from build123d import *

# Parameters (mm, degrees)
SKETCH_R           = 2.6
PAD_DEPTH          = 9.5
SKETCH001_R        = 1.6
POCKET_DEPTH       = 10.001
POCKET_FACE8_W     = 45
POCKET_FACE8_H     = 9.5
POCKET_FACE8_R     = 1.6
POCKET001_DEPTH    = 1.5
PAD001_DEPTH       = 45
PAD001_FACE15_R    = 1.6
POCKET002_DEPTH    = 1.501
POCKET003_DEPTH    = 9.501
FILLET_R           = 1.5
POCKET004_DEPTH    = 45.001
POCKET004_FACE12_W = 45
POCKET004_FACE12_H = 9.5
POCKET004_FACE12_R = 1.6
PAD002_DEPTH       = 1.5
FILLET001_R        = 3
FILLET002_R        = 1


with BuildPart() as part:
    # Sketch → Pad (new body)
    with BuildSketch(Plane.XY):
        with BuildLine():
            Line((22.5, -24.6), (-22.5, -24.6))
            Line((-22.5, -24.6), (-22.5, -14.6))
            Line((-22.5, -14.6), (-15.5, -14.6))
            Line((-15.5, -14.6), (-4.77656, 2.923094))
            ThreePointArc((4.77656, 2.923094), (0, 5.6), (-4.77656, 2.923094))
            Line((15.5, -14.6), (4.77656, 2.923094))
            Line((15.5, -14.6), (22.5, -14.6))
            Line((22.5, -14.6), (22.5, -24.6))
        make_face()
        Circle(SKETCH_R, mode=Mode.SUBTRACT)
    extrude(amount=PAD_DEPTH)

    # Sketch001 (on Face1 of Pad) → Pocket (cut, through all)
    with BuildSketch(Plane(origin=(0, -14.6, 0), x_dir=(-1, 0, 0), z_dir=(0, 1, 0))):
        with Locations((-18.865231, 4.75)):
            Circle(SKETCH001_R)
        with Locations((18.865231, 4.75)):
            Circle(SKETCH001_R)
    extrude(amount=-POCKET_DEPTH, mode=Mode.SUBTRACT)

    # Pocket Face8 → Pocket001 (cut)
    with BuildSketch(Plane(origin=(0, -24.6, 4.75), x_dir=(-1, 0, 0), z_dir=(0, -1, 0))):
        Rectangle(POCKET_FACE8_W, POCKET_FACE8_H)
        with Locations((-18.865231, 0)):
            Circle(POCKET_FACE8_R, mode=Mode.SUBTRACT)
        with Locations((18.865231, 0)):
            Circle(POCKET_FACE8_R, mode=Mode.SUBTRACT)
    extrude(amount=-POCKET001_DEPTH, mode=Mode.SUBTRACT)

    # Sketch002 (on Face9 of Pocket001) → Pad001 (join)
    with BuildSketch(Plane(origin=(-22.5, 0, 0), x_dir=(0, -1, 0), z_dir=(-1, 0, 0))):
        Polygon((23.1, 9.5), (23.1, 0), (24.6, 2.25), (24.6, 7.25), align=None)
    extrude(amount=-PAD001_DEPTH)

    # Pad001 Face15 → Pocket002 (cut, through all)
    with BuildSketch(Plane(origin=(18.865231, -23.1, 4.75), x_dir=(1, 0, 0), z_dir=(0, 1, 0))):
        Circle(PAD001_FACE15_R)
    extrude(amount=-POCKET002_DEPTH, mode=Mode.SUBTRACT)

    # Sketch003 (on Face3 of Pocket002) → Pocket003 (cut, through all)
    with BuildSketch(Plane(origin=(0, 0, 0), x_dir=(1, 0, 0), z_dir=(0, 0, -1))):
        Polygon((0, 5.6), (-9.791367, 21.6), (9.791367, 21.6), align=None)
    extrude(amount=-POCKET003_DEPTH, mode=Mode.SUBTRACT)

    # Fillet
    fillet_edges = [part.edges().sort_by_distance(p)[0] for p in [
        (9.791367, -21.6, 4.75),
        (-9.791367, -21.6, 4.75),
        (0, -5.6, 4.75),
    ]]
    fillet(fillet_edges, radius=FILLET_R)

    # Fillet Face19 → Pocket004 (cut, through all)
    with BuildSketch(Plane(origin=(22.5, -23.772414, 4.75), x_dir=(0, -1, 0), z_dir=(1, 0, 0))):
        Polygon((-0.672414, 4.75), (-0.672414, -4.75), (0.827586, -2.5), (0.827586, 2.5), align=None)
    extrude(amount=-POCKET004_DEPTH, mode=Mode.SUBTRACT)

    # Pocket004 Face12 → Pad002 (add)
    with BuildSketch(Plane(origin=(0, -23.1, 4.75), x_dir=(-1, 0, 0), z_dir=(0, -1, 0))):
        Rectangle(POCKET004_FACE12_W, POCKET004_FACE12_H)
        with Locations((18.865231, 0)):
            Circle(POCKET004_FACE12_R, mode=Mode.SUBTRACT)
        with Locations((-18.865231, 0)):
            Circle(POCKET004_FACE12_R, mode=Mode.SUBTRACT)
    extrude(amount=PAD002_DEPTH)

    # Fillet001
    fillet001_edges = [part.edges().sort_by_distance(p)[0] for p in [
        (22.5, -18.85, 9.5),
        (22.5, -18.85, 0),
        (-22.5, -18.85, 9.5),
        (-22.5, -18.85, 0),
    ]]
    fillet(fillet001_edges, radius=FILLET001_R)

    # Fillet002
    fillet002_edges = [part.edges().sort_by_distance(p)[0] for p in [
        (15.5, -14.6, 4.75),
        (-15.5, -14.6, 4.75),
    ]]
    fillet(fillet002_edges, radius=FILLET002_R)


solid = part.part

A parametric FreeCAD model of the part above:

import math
import FreeCAD as App
import Part
import Sketcher


def edges_at(feature, points):
    """Names of the edges that pass closest to the given points."""
    edges = feature.Shape.Edges
    near = lambda p: min(range(len(edges)), key=lambda i: edges[i].distToShape(Part.Vertex(*p))[0])
    return sorted({f"Edge{near(p) + 1}" for p in points})

doc = App.newDocument("Part")
body = doc.addObject("PartDesign::Body", "Body")

sketch1 = body.newObject("Sketcher::SketchObject", "Sketch")
sketch1.AttachmentSupport = (doc.getObject("XY_Plane"), [""])
sketch1.MapMode = "FlatFace"
sketch1.addGeometry(Part.LineSegment(App.Vector(-22.5, -24.6, 0), App.Vector(22.5, -24.6, 0)), False)
sketch1.addGeometry(Part.LineSegment(App.Vector(22.5, -24.6, 0), App.Vector(22.5, -14.6, 0)), False)
sketch1.addGeometry(Part.LineSegment(App.Vector(22.5, -14.6, 0), App.Vector(15.5, -14.6, 0)), False)
sketch1.addGeometry(Part.LineSegment(App.Vector(15.5, -14.6, 0), App.Vector(4.77656, 2.923094, 0)), False)
sketch1.addGeometry(Part.ArcOfCircle(Part.Circle(App.Vector(0, -0.000001, 0), App.Vector(0, 0, 1), 5.600001), math.radians(31.465236), math.radians(148.534764)), False)
sketch1.addGeometry(Part.LineSegment(App.Vector(-4.77656, 2.923094, 0), App.Vector(-15.5, -14.6, 0)), False)
sketch1.addGeometry(Part.LineSegment(App.Vector(-15.5, -14.6, 0), App.Vector(-22.5, -14.6, 0)), False)
sketch1.addGeometry(Part.LineSegment(App.Vector(-22.5, -14.6, 0), App.Vector(-22.5, -24.6, 0)), False)
sketch1.addGeometry(Part.Circle(App.Vector(0, 0, 0), App.Vector(0, 0, 1), 2.6), False)
sketch1.addConstraint(Sketcher.Constraint("Coincident", 0, 2, 1, 1))
sketch1.addConstraint(Sketcher.Constraint("Coincident", 1, 2, 2, 1))
sketch1.addConstraint(Sketcher.Constraint("Coincident", 2, 2, 3, 1))
sketch1.addConstraint(Sketcher.Constraint("Coincident", 3, 2, 4, 1))
sketch1.addConstraint(Sketcher.Constraint("Coincident", 4, 2, 5, 1))
sketch1.addConstraint(Sketcher.Constraint("Coincident", 5, 2, 6, 1))
sketch1.addConstraint(Sketcher.Constraint("Coincident", 6, 2, 7, 1))
sketch1.addConstraint(Sketcher.Constraint("Coincident", 7, 2, 0, 1))
sketch1.addConstraint(Sketcher.Constraint("Horizontal", 0))
sketch1.addConstraint(Sketcher.Constraint("Vertical", 1))
sketch1.addConstraint(Sketcher.Constraint("Horizontal", 2))
sketch1.addConstraint(Sketcher.Constraint("Horizontal", 6))
sketch1.addConstraint(Sketcher.Constraint("Vertical", 7))
sketch1.addConstraint(Sketcher.Constraint("Coincident", 4, 3, -1, 1))
sketch1.addConstraint(Sketcher.Constraint("Coincident", 8, 3, -1, 1))
sketch1.addConstraint(Sketcher.Constraint("Symmetric", 2, 2, 5, 2, -2))
sketch1.addConstraint(Sketcher.Constraint("Horizontal", 3, 2, 4, 2))
sketch1.addConstraint(Sketcher.Constraint("Equal", 2, 6))
sketch1.addConstraint(Sketcher.Constraint("Diameter", 8, 5.2))
sketch1.addConstraint(Sketcher.Constraint("Radius", 4, 5.600001))
sketch1.addConstraint(Sketcher.Constraint("DistanceX", 0, 1, 0, 2, 45.0))
sketch1.addConstraint(Sketcher.Constraint("DistanceX", 2, 2, 2, 1, 7.0))
sketch1.addConstraint(Sketcher.Constraint("DistanceY", 1, 1, 1, 2, 10.0))
sketch1.addConstraint(Sketcher.Constraint("DistanceY", 0, 2, -1, 1, 24.6))
sketch1.addConstraint(Sketcher.Constraint("Distance", 3, 20.54388))
pad1 = body.newObject("PartDesign::Pad", "Pad")
pad1.Profile = sketch1
pad1.Length = 9.5

sketch2 = body.newObject("Sketcher::SketchObject", "Sketch001")
sketch2.AttachmentSupport = (doc.getObject("XZ_Plane"), [""])
sketch2.MapMode = "FlatFace"
sketch2.AttachmentOffset = App.Placement(App.Vector(0, 0, 14.6), App.Rotation())
sketch2.addGeometry(Part.Circle(App.Vector(18.865231, 4.75, 0), App.Vector(0, 0, 1), 1.6), False)
sketch2.addGeometry(Part.Circle(App.Vector(-18.865231, 4.75, 0), App.Vector(0, 0, 1), 1.6), False)
sketch2.addConstraint(Sketcher.Constraint("Equal", 0, 1))
sketch2.addConstraint(Sketcher.Constraint("Symmetric", 0, 3, 1, 3, -2))
sketch2.addConstraint(Sketcher.Constraint("Diameter", 0, 3.2))
sketch2.addConstraint(Sketcher.Constraint("DistanceY", -1, 1, 0, 3, 4.75))
sketch2.addConstraint(Sketcher.Constraint("DistanceX", -1, 1, 0, 3, 18.865231))
pocket1 = body.newObject("PartDesign::Pocket", "Pocket")
pocket1.Profile = sketch2
pocket1.Type = "ThroughAll"
pocket1.Reversed = True

sketch3 = body.newObject("Sketcher::SketchObject", "Sketch002")
sketch3.AttachmentSupport = (doc.getObject("XZ_Plane"), [""])
sketch3.MapMode = "FlatFace"
sketch3.AttachmentOffset = App.Placement(App.Vector(0, 0, 24.6), App.Rotation())
sketch3.addGeometry(Part.LineSegment(App.Vector(22.5, 0, 0), App.Vector(22.5, 9.5, 0)), False)
sketch3.addGeometry(Part.LineSegment(App.Vector(22.5, 9.5, 0), App.Vector(-22.5, 9.5, 0)), False)
sketch3.addGeometry(Part.LineSegment(App.Vector(-22.5, 9.5, 0), App.Vector(-22.5, 0, 0)), False)
sketch3.addGeometry(Part.LineSegment(App.Vector(-22.5, 0, 0), App.Vector(22.5, 0, 0)), False)
sketch3.addGeometry(Part.Circle(App.Vector(18.865231, 4.75, 0), App.Vector(0, 0, 1), 1.6), False)
sketch3.addGeometry(Part.Circle(App.Vector(-18.865231, 4.75, 0), App.Vector(0, 0, 1), 1.6), False)
sketch3.addConstraint(Sketcher.Constraint("Coincident", 0, 2, 1, 1))
sketch3.addConstraint(Sketcher.Constraint("Coincident", 1, 2, 2, 1))
sketch3.addConstraint(Sketcher.Constraint("Coincident", 2, 2, 3, 1))
sketch3.addConstraint(Sketcher.Constraint("Coincident", 3, 2, 0, 1))
sketch3.addConstraint(Sketcher.Constraint("Vertical", 0))
sketch3.addConstraint(Sketcher.Constraint("Horizontal", 1))
sketch3.addConstraint(Sketcher.Constraint("Vertical", 2))
sketch3.addConstraint(Sketcher.Constraint("Horizontal", 3))
sketch3.addConstraint(Sketcher.Constraint("Equal", 4, 5))
sketch3.addConstraint(Sketcher.Constraint("Symmetric", 2, 2, 3, 2, -1, 1))
sketch3.addConstraint(Sketcher.Constraint("Symmetric", 4, 3, 5, 3, -2))
sketch3.addConstraint(Sketcher.Constraint("Diameter", 4, 3.2))
sketch3.addConstraint(Sketcher.Constraint("DistanceX", 1, 2, 1, 1, 45.0))
sketch3.addConstraint(Sketcher.Constraint("DistanceY", 0, 1, 0, 2, 9.5))
sketch3.addConstraint(Sketcher.Constraint("DistanceY", -1, 1, 4, 3, 4.75))
sketch3.addConstraint(Sketcher.Constraint("DistanceX", -1, 1, 4, 3, 18.865231))
pocket2 = body.newObject("PartDesign::Pocket", "Pocket001")
pocket2.Profile = sketch3
pocket2.Length = 1.5

sketch4 = body.newObject("Sketcher::SketchObject", "Sketch003")
sketch4.AttachmentSupport = (doc.getObject("YZ_Plane"), [""])
sketch4.MapMode = "FlatFace"
sketch4.AttachmentOffset = App.Placement(App.Vector(0, 0, -22.5), App.Rotation())
sketch4.addGeometry(Part.LineSegment(App.Vector(-23.1, 9.5, 0), App.Vector(-23.1, 0, 0)), False)
sketch4.addGeometry(Part.LineSegment(App.Vector(-23.1, 0, 0), App.Vector(-24.6, 2.25, 0)), False)
sketch4.addGeometry(Part.LineSegment(App.Vector(-24.6, 2.25, 0), App.Vector(-24.6, 7.25, 0)), False)
sketch4.addGeometry(Part.LineSegment(App.Vector(-24.6, 7.25, 0), App.Vector(-23.1, 9.5, 0)), False)
sketch4.addConstraint(Sketcher.Constraint("Coincident", 0, 2, 1, 1))
sketch4.addConstraint(Sketcher.Constraint("Coincident", 1, 2, 2, 1))
sketch4.addConstraint(Sketcher.Constraint("Coincident", 2, 2, 3, 1))
sketch4.addConstraint(Sketcher.Constraint("Coincident", 3, 2, 0, 1))
sketch4.addConstraint(Sketcher.Constraint("Vertical", 0))
sketch4.addConstraint(Sketcher.Constraint("Vertical", 2))
sketch4.addConstraint(Sketcher.Constraint("PointOnObject", 0, 2, -1))
sketch4.addConstraint(Sketcher.Constraint("Equal", 1, 3))
sketch4.addConstraint(Sketcher.Constraint("DistanceY", 2, 1, 2, 2, 5.0))
sketch4.addConstraint(Sketcher.Constraint("DistanceY", 0, 2, 0, 1, 9.5))
sketch4.addConstraint(Sketcher.Constraint("DistanceX", 0, 2, -1, 1, 23.1))
sketch4.addConstraint(Sketcher.Constraint("DistanceX", 1, 2, -1, 1, 24.6))
pad2 = body.newObject("PartDesign::Pad", "Pad001")
pad2.Profile = sketch4
pad2.Length = 45

sketch5 = body.newObject("Sketcher::SketchObject", "Sketch004")
sketch5.AttachmentSupport = (doc.getObject("XZ_Plane"), [""])
sketch5.MapMode = "FlatFace"
sketch5.AttachmentOffset = App.Placement(App.Vector(0, 0, 23.1), App.Rotation())
sketch5.addGeometry(Part.Circle(App.Vector(18.865231, 4.75, 0), App.Vector(0, 0, 1), 1.6), False)
sketch5.addConstraint(Sketcher.Constraint("Diameter", 0, 3.2))
sketch5.addConstraint(Sketcher.Constraint("DistanceY", -1, 1, 0, 3, 4.75))
sketch5.addConstraint(Sketcher.Constraint("DistanceX", -1, 1, 0, 3, 18.865231))
pocket3 = body.newObject("PartDesign::Pocket", "Pocket002")
pocket3.Profile = sketch5
pocket3.Type = "ThroughAll"
pocket3.Reversed = True

sketch6 = body.newObject("Sketcher::SketchObject", "Sketch005")
sketch6.AttachmentSupport = (doc.getObject("XY_Plane"), [""])
sketch6.MapMode = "FlatFace"
sketch6.addGeometry(Part.LineSegment(App.Vector(-9.791367, -21.6, 0), App.Vector(0, -5.6, 0)), False)
sketch6.addGeometry(Part.LineSegment(App.Vector(0, -5.6, 0), App.Vector(9.791367, -21.6, 0)), False)
sketch6.addGeometry(Part.LineSegment(App.Vector(9.791367, -21.6, 0), App.Vector(-9.791367, -21.6, 0)), False)
sketch6.addConstraint(Sketcher.Constraint("Coincident", 0, 2, 1, 1))
sketch6.addConstraint(Sketcher.Constraint("Coincident", 1, 2, 2, 1))
sketch6.addConstraint(Sketcher.Constraint("Coincident", 2, 2, 0, 1))
sketch6.addConstraint(Sketcher.Constraint("Horizontal", 2))
sketch6.addConstraint(Sketcher.Constraint("PointOnObject", 0, 2, -2))
sketch6.addConstraint(Sketcher.Constraint("Equal", 0, 1))
sketch6.addConstraint(Sketcher.Constraint("DistanceY", 1, 2, 0, 2, 16.0))
sketch6.addConstraint(Sketcher.Constraint("DistanceY", 0, 2, -1, 1, 5.6))
sketch6.addConstraint(Sketcher.Constraint("Distance", 0, 18.758221))
pocket4 = body.newObject("PartDesign::Pocket", "Pocket003")
pocket4.Profile = sketch6
pocket4.Type = "ThroughAll"
pocket4.Reversed = True
doc.recompute()

fillet = body.newObject("PartDesign::Fillet", "Fillet")
fillet.Base = (pocket4, edges_at(pocket4, [(9.791, -21.6, 4.75), (-9.791, -21.6, 4.75), (0, -5.6, 4.75)]))
fillet.Radius = 1.5

sketch7 = body.newObject("Sketcher::SketchObject", "Sketch006")
sketch7.AttachmentSupport = (doc.getObject("YZ_Plane"), [""])
sketch7.MapMode = "FlatFace"
sketch7.AttachmentOffset = App.Placement(App.Vector(0, 0, 22.5), App.Rotation())
sketch7.addGeometry(Part.LineSegment(App.Vector(-23.1, 0, 0), App.Vector(-23.1, 9.5, 0)), False)
sketch7.addGeometry(Part.LineSegment(App.Vector(-23.1, 9.5, 0), App.Vector(-24.6, 7.25, 0)), False)
sketch7.addGeometry(Part.LineSegment(App.Vector(-24.6, 7.25, 0), App.Vector(-24.6, 2.25, 0)), False)
sketch7.addGeometry(Part.LineSegment(App.Vector(-24.6, 2.25, 0), App.Vector(-23.1, 0, 0)), False)
sketch7.addConstraint(Sketcher.Constraint("Coincident", 0, 2, 1, 1))
sketch7.addConstraint(Sketcher.Constraint("Coincident", 1, 2, 2, 1))
sketch7.addConstraint(Sketcher.Constraint("Coincident", 2, 2, 3, 1))
sketch7.addConstraint(Sketcher.Constraint("Coincident", 3, 2, 0, 1))
sketch7.addConstraint(Sketcher.Constraint("Vertical", 0))
sketch7.addConstraint(Sketcher.Constraint("Vertical", 2))
sketch7.addConstraint(Sketcher.Constraint("PointOnObject", 3, 2, -1))
sketch7.addConstraint(Sketcher.Constraint("Equal", 1, 3))
sketch7.addConstraint(Sketcher.Constraint("DistanceY", 2, 2, 2, 1, 5.0))
sketch7.addConstraint(Sketcher.Constraint("DistanceY", 0, 1, 0, 2, 9.5))
sketch7.addConstraint(Sketcher.Constraint("DistanceX", 0, 2, -1, 1, 23.1))
sketch7.addConstraint(Sketcher.Constraint("DistanceX", 1, 2, -1, 1, 24.6))
pocket5 = body.newObject("PartDesign::Pocket", "Pocket004")
pocket5.Profile = sketch7
pocket5.Type = "ThroughAll"

sketch8 = body.newObject("Sketcher::SketchObject", "Sketch007")
sketch8.AttachmentSupport = (doc.getObject("XZ_Plane"), [""])
sketch8.MapMode = "FlatFace"
sketch8.AttachmentOffset = App.Placement(App.Vector(0, 0, 23.1), App.Rotation())
sketch8.addGeometry(Part.LineSegment(App.Vector(22.5, 0, 0), App.Vector(22.5, 9.5, 0)), False)
sketch8.addGeometry(Part.LineSegment(App.Vector(22.5, 9.5, 0), App.Vector(-22.5, 9.5, 0)), False)
sketch8.addGeometry(Part.LineSegment(App.Vector(-22.5, 9.5, 0), App.Vector(-22.5, 0, 0)), False)
sketch8.addGeometry(Part.LineSegment(App.Vector(-22.5, 0, 0), App.Vector(22.5, 0, 0)), False)
sketch8.addGeometry(Part.Circle(App.Vector(18.865231, 4.75, 0), App.Vector(0, 0, 1), 1.6), False)
sketch8.addGeometry(Part.Circle(App.Vector(-18.865231, 4.75, 0), App.Vector(0, 0, 1), 1.6), False)
sketch8.addConstraint(Sketcher.Constraint("Coincident", 0, 2, 1, 1))
sketch8.addConstraint(Sketcher.Constraint("Coincident", 1, 2, 2, 1))
sketch8.addConstraint(Sketcher.Constraint("Coincident", 2, 2, 3, 1))
sketch8.addConstraint(Sketcher.Constraint("Coincident", 3, 2, 0, 1))
sketch8.addConstraint(Sketcher.Constraint("Vertical", 0))
sketch8.addConstraint(Sketcher.Constraint("Horizontal", 1))
sketch8.addConstraint(Sketcher.Constraint("Vertical", 2))
sketch8.addConstraint(Sketcher.Constraint("Horizontal", 3))
sketch8.addConstraint(Sketcher.Constraint("Equal", 4, 5))
sketch8.addConstraint(Sketcher.Constraint("Symmetric", 2, 2, 3, 2, -1, 1))
sketch8.addConstraint(Sketcher.Constraint("Symmetric", 4, 3, 5, 3, -2))
sketch8.addConstraint(Sketcher.Constraint("Diameter", 4, 3.2))
sketch8.addConstraint(Sketcher.Constraint("DistanceX", 1, 2, 1, 1, 45.0))
sketch8.addConstraint(Sketcher.Constraint("DistanceY", 0, 1, 0, 2, 9.5))
sketch8.addConstraint(Sketcher.Constraint("DistanceY", -1, 1, 4, 3, 4.75))
sketch8.addConstraint(Sketcher.Constraint("DistanceX", -1, 1, 4, 3, 18.865231))
pad3 = body.newObject("PartDesign::Pad", "Pad002")
pad3.Profile = sketch8
pad3.Length = 1.5
doc.recompute()

fillet2 = body.newObject("PartDesign::Fillet", "Fillet001")
fillet2.Base = (pad3, edges_at(pad3, [
    (22.5, -19.6, 9.5),
    (22.5, -19.6, 0),
    (-22.5, -19.6, 9.5),
    (-22.5, -19.6, 0),
]))
fillet2.Radius = 3
doc.recompute()

fillet3 = body.newObject("PartDesign::Fillet", "Fillet002")
fillet3.Base = (fillet2, edges_at(fillet2, [(15.5, -14.6, 4.75), (-15.5, -14.6, 4.75)]))
fillet3.Radius = 1

doc.recompute()
